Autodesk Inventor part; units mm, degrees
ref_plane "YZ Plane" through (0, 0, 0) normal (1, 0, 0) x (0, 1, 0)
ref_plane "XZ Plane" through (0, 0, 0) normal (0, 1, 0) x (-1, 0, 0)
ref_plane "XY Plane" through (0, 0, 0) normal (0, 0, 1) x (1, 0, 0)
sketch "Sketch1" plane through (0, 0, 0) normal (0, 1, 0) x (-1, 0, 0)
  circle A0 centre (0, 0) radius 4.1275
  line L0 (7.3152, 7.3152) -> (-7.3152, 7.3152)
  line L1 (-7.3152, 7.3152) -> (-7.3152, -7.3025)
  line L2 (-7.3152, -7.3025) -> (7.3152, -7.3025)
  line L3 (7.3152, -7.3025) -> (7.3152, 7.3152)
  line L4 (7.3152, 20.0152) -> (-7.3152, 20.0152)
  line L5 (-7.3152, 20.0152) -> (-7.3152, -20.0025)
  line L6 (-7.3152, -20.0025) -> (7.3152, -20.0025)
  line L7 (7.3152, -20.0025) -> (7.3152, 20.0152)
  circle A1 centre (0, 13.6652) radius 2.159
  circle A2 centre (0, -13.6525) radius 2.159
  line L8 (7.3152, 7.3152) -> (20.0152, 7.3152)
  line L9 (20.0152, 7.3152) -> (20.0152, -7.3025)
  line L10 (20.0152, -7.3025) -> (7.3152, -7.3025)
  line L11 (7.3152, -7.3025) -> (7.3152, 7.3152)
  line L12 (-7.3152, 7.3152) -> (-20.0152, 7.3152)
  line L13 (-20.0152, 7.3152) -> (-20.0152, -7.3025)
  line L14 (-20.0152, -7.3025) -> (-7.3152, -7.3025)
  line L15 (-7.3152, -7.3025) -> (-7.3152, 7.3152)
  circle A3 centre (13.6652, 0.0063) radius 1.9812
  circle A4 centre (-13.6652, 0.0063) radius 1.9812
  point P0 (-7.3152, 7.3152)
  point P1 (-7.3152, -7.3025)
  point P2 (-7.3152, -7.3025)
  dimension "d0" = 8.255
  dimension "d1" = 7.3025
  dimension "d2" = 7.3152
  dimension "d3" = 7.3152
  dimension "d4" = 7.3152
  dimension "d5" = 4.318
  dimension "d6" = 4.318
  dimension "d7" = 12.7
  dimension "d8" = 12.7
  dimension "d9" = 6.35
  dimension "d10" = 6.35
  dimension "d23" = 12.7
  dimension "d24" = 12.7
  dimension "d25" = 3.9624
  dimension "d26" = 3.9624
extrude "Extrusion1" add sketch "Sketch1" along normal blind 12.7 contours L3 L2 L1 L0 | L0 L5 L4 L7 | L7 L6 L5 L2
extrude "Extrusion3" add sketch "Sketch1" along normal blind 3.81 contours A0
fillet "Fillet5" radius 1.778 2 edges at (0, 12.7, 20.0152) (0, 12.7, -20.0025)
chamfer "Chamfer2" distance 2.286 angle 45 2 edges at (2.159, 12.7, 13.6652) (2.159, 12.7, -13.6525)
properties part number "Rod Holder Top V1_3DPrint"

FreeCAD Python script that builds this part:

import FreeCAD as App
import Part
import Sketcher

V = App.Vector
Q = App.Units.Quantity


def edges_at(feature, points):
    """Names of the edges that pass closest to the given points."""
    edges = feature.Shape.Edges
    near = lambda p: min(range(len(edges)), key=lambda i: edges[i].distToShape(Part.Vertex(*p))[0])
    return sorted({f"Edge{near(p) + 1}" for p in points})

doc = App.newDocument("Part")
body = doc.addObject("PartDesign::Body", "Body")

sketch1 = body.newObject("Sketcher::SketchObject", "Sketch")
sketch1.AttachmentSupport = (doc.getObject("XZ_Plane"), [""])
sketch1.MapMode = "FlatFace"
sketch1.addGeometry([
    Part.LineSegment(V(-7.3, 20, 0), V(7.3, 20, 0)),
    Part.LineSegment(V(7.3, 20, 0), V(7.3, -20, 0)),
    Part.LineSegment(V(7.3, -20, 0), V(-7.3, -20, 0)),
    Part.LineSegment(V(-7.3, -20, 0), V(-7.3, 20, 0)),
    Part.Circle(V(0, 0, 0), V(0, 0, 1), 4.1),
    Part.Circle(V(0, -13.7, 0), V(0, 0, 1), 2.2),
    Part.Circle(V(0, 13.7, 0), V(0, 0, 1), 2.2),
], False)
sketch1.addConstraint([
    Sketcher.Constraint("Coincident", 0, 2, 1, 1),
    Sketcher.Constraint("Coincident", 1, 2, 2, 1),
    Sketcher.Constraint("Coincident", 2, 2, 3, 1),
    Sketcher.Constraint("Coincident", 3, 2, 0, 1),
    Sketcher.Constraint("Horizontal", 0),
    Sketcher.Constraint("Vertical", 1),
    Sketcher.Constraint("Horizontal", 2),
    Sketcher.Constraint("Vertical", 3),
    Sketcher.Constraint("Coincident", 4, 3, -1, 1),
    Sketcher.Constraint("Equal", 5, 6),
    Sketcher.Constraint("PointOnObject", 5, 3, -2),
    Sketcher.Constraint("PointOnObject", 6, 3, -2),
    Sketcher.Constraint("Diameter", 5, Q("0.17 in")),
    Sketcher.Constraint("Diameter", 4, Q("0.325 in")),
    Sketcher.Constraint("DistanceY", 6, 3, 0, 2, Q("0.25 in")),
    Sketcher.Constraint("DistanceY", 1, 2, 5, 3, Q("0.25 in")),
    Sketcher.Constraint("DistanceX", -1, 1, 0, 2, Q("0.288 in")),
    Sketcher.Constraint("DistanceX", 2, 2, -1, 1, Q("0.288 in")),
    Sketcher.Constraint("DistanceY", 1, 2, 1, 1, Q("1.5755 in")),
    Sketcher.Constraint("DistanceY", -1, 1, 6, 3, Q("0.538 in")),
])
pad1 = body.newObject("PartDesign::Pad", "Pad")
pad1.Profile = sketch1
pad1.Length = Q("0.5 in")
pad1.Reversed = True

sketch2 = body.newObject("Sketcher::SketchObject", "Sketch001")
sketch2.AttachmentSupport = (doc.getObject("XZ_Plane"), [""])
sketch2.MapMode = "FlatFace"
sketch2.addGeometry(Part.Circle(V(0, 0, 0), V(0, 0, 1), 4.1), False)
sketch2.addConstraint([
    Sketcher.Constraint("Coincident", 0, 3, -1, 1),
    Sketcher.Constraint("Diameter", 0, Q("0.325 in")),
])
pad2 = body.newObject("PartDesign::Pad", "Pad001")
pad2.Profile = sketch2
pad2.Length = Q("0.15 in")
pad2.Reversed = True
doc.recompute()

fillet = body.newObject("PartDesign::Fillet", "Fillet")
fillet.Base = (pad2, edges_at(pad2, [(0, 12.7, 20.015), (0, 12.7, -20.003)]))
fillet.Radius = Q("0.07 in")
doc.recompute()

chamfer = body.newObject("PartDesign::Chamfer", "Chamfer")
chamfer.Base = (fillet, edges_at(fillet, [(2.159, 12.7, 13.665), (2.159, 12.7, -13.652)]))
chamfer.Size = Q("0.09 in")

doc.recompute()
